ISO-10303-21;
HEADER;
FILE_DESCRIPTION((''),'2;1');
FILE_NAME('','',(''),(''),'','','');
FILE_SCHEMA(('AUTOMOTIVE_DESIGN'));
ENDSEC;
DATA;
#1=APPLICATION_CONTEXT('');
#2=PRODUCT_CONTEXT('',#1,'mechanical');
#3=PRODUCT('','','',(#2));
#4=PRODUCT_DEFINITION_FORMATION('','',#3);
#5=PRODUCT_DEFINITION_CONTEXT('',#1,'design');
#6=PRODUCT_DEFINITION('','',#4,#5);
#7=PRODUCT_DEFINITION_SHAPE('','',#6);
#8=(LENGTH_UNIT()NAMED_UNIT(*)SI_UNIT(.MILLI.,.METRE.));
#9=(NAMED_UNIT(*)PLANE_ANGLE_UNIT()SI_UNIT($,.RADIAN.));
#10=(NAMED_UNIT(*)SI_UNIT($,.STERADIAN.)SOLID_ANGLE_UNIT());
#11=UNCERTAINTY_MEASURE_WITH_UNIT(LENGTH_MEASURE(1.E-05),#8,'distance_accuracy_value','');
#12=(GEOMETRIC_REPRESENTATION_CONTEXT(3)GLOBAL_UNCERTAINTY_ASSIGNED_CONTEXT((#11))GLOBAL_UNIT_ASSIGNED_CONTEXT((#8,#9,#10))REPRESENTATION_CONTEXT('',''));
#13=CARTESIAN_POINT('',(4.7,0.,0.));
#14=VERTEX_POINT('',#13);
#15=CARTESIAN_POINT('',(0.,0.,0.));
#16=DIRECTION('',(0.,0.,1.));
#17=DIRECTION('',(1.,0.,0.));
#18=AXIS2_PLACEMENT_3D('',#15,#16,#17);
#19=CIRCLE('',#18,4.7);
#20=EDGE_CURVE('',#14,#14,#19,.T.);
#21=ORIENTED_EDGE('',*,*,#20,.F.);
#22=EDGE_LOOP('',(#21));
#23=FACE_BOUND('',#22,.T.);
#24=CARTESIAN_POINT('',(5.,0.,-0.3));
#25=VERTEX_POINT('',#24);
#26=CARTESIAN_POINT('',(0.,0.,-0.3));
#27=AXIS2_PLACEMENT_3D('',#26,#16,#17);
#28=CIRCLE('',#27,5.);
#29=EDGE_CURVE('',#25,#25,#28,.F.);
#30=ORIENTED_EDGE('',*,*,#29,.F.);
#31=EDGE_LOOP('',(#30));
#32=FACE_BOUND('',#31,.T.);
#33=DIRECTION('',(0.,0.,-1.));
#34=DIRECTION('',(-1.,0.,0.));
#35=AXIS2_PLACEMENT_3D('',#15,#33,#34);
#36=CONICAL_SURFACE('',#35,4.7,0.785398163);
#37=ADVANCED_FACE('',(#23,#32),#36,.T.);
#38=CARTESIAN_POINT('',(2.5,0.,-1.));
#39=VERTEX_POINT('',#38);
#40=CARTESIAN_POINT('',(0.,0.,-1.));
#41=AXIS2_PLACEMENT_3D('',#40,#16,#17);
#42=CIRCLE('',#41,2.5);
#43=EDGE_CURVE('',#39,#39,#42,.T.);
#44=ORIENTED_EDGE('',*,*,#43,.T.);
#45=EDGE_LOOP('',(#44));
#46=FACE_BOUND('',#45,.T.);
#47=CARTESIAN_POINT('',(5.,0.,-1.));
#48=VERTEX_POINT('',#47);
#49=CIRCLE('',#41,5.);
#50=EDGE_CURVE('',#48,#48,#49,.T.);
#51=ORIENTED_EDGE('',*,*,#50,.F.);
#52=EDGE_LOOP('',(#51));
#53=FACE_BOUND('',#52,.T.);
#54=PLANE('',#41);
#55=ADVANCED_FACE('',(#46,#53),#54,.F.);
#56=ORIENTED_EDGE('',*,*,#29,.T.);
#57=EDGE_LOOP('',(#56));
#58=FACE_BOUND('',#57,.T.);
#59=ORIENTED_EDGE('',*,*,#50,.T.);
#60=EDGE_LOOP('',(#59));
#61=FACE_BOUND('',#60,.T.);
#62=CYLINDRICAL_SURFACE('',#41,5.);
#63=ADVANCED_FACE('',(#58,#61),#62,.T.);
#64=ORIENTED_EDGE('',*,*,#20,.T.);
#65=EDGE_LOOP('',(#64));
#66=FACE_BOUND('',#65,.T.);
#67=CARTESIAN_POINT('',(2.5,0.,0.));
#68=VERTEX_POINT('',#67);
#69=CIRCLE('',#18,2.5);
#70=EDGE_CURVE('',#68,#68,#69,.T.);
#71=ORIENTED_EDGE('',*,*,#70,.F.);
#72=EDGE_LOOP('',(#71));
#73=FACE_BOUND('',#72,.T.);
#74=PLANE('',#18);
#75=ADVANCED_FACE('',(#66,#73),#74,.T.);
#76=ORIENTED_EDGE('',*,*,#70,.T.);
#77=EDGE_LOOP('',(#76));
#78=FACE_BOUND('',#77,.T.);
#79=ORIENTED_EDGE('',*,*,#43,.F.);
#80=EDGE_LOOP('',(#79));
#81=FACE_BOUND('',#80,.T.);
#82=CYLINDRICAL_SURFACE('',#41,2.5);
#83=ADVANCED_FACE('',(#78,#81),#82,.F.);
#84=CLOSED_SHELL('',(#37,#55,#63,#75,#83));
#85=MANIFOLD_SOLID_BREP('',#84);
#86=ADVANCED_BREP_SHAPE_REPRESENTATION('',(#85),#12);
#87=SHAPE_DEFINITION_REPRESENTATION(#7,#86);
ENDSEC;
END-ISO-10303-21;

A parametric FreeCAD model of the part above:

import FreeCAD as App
import Part
import Sketcher

V = App.Vector
Q = App.Units.Quantity


def edges_at(feature, points):
    """Names of the edges that pass closest to the given points."""
    edges = feature.Shape.Edges
    near = lambda p: min(range(len(edges)), key=lambda i: edges[i].distToShape(Part.Vertex(*p))[0])
    return sorted({f"Edge{near(p) + 1}" for p in points})

doc = App.newDocument("Part")
params = doc.addObject("Spreadsheet::Sheet", "Params")
for row, (alias, value) in enumerate([
    ("sketch1_diameter", "10 mm"),
    ("sketch1_diameter2", "5 mm"),
    ("pad1_length", "1 mm"),
    ("chamfer_size", "0.3 mm"),
], start=1):
    params.set(f"A{row}", alias)
    params.set(f"B{row}", "=" + value)
    params.setAlias(f"B{row}", alias)

body = doc.addObject("PartDesign::Body", "Body")

# Sketch on XY plane
sketch1 = body.newObject("Sketcher::SketchObject", "Sketch")
sketch1.AttachmentSupport = (doc.getObject("XY_Plane"), [""])
sketch1.MapMode = "FlatFace"
sketch1.addGeometry([
    Part.Circle(V(0, 0, 0), V(0, 0, 1), 5),
    Part.Circle(V(0, 0, 0), V(0, 0, 1), 2.5),
], False)
sketch1.addConstraint([
    Sketcher.Constraint("Coincident", 0, 3, -1, 1),
    Sketcher.Constraint("Coincident", 1, 3, -1, 1),
    Sketcher.Constraint("Diameter", 0, Q("10 mm")),
    Sketcher.Constraint("Diameter", 1, Q("5 mm")),
])
sketch1.setExpression("Constraints[2]", "Params.sketch1_diameter")
sketch1.setExpression("Constraints[3]", "Params.sketch1_diameter2")
pad1 = body.newObject("PartDesign::Pad", "Pad")
pad1.Profile = sketch1
pad1.setExpression("Length", "Params.pad1_length")
pad1.Reversed = True
doc.recompute()

chamfer = body.newObject("PartDesign::Chamfer", "Chamfer")
chamfer.Base = (pad1, edges_at(pad1, [(-5, 0, 0)]))
chamfer.setExpression("Size", "Params.chamfer_size")

doc.recompute()
